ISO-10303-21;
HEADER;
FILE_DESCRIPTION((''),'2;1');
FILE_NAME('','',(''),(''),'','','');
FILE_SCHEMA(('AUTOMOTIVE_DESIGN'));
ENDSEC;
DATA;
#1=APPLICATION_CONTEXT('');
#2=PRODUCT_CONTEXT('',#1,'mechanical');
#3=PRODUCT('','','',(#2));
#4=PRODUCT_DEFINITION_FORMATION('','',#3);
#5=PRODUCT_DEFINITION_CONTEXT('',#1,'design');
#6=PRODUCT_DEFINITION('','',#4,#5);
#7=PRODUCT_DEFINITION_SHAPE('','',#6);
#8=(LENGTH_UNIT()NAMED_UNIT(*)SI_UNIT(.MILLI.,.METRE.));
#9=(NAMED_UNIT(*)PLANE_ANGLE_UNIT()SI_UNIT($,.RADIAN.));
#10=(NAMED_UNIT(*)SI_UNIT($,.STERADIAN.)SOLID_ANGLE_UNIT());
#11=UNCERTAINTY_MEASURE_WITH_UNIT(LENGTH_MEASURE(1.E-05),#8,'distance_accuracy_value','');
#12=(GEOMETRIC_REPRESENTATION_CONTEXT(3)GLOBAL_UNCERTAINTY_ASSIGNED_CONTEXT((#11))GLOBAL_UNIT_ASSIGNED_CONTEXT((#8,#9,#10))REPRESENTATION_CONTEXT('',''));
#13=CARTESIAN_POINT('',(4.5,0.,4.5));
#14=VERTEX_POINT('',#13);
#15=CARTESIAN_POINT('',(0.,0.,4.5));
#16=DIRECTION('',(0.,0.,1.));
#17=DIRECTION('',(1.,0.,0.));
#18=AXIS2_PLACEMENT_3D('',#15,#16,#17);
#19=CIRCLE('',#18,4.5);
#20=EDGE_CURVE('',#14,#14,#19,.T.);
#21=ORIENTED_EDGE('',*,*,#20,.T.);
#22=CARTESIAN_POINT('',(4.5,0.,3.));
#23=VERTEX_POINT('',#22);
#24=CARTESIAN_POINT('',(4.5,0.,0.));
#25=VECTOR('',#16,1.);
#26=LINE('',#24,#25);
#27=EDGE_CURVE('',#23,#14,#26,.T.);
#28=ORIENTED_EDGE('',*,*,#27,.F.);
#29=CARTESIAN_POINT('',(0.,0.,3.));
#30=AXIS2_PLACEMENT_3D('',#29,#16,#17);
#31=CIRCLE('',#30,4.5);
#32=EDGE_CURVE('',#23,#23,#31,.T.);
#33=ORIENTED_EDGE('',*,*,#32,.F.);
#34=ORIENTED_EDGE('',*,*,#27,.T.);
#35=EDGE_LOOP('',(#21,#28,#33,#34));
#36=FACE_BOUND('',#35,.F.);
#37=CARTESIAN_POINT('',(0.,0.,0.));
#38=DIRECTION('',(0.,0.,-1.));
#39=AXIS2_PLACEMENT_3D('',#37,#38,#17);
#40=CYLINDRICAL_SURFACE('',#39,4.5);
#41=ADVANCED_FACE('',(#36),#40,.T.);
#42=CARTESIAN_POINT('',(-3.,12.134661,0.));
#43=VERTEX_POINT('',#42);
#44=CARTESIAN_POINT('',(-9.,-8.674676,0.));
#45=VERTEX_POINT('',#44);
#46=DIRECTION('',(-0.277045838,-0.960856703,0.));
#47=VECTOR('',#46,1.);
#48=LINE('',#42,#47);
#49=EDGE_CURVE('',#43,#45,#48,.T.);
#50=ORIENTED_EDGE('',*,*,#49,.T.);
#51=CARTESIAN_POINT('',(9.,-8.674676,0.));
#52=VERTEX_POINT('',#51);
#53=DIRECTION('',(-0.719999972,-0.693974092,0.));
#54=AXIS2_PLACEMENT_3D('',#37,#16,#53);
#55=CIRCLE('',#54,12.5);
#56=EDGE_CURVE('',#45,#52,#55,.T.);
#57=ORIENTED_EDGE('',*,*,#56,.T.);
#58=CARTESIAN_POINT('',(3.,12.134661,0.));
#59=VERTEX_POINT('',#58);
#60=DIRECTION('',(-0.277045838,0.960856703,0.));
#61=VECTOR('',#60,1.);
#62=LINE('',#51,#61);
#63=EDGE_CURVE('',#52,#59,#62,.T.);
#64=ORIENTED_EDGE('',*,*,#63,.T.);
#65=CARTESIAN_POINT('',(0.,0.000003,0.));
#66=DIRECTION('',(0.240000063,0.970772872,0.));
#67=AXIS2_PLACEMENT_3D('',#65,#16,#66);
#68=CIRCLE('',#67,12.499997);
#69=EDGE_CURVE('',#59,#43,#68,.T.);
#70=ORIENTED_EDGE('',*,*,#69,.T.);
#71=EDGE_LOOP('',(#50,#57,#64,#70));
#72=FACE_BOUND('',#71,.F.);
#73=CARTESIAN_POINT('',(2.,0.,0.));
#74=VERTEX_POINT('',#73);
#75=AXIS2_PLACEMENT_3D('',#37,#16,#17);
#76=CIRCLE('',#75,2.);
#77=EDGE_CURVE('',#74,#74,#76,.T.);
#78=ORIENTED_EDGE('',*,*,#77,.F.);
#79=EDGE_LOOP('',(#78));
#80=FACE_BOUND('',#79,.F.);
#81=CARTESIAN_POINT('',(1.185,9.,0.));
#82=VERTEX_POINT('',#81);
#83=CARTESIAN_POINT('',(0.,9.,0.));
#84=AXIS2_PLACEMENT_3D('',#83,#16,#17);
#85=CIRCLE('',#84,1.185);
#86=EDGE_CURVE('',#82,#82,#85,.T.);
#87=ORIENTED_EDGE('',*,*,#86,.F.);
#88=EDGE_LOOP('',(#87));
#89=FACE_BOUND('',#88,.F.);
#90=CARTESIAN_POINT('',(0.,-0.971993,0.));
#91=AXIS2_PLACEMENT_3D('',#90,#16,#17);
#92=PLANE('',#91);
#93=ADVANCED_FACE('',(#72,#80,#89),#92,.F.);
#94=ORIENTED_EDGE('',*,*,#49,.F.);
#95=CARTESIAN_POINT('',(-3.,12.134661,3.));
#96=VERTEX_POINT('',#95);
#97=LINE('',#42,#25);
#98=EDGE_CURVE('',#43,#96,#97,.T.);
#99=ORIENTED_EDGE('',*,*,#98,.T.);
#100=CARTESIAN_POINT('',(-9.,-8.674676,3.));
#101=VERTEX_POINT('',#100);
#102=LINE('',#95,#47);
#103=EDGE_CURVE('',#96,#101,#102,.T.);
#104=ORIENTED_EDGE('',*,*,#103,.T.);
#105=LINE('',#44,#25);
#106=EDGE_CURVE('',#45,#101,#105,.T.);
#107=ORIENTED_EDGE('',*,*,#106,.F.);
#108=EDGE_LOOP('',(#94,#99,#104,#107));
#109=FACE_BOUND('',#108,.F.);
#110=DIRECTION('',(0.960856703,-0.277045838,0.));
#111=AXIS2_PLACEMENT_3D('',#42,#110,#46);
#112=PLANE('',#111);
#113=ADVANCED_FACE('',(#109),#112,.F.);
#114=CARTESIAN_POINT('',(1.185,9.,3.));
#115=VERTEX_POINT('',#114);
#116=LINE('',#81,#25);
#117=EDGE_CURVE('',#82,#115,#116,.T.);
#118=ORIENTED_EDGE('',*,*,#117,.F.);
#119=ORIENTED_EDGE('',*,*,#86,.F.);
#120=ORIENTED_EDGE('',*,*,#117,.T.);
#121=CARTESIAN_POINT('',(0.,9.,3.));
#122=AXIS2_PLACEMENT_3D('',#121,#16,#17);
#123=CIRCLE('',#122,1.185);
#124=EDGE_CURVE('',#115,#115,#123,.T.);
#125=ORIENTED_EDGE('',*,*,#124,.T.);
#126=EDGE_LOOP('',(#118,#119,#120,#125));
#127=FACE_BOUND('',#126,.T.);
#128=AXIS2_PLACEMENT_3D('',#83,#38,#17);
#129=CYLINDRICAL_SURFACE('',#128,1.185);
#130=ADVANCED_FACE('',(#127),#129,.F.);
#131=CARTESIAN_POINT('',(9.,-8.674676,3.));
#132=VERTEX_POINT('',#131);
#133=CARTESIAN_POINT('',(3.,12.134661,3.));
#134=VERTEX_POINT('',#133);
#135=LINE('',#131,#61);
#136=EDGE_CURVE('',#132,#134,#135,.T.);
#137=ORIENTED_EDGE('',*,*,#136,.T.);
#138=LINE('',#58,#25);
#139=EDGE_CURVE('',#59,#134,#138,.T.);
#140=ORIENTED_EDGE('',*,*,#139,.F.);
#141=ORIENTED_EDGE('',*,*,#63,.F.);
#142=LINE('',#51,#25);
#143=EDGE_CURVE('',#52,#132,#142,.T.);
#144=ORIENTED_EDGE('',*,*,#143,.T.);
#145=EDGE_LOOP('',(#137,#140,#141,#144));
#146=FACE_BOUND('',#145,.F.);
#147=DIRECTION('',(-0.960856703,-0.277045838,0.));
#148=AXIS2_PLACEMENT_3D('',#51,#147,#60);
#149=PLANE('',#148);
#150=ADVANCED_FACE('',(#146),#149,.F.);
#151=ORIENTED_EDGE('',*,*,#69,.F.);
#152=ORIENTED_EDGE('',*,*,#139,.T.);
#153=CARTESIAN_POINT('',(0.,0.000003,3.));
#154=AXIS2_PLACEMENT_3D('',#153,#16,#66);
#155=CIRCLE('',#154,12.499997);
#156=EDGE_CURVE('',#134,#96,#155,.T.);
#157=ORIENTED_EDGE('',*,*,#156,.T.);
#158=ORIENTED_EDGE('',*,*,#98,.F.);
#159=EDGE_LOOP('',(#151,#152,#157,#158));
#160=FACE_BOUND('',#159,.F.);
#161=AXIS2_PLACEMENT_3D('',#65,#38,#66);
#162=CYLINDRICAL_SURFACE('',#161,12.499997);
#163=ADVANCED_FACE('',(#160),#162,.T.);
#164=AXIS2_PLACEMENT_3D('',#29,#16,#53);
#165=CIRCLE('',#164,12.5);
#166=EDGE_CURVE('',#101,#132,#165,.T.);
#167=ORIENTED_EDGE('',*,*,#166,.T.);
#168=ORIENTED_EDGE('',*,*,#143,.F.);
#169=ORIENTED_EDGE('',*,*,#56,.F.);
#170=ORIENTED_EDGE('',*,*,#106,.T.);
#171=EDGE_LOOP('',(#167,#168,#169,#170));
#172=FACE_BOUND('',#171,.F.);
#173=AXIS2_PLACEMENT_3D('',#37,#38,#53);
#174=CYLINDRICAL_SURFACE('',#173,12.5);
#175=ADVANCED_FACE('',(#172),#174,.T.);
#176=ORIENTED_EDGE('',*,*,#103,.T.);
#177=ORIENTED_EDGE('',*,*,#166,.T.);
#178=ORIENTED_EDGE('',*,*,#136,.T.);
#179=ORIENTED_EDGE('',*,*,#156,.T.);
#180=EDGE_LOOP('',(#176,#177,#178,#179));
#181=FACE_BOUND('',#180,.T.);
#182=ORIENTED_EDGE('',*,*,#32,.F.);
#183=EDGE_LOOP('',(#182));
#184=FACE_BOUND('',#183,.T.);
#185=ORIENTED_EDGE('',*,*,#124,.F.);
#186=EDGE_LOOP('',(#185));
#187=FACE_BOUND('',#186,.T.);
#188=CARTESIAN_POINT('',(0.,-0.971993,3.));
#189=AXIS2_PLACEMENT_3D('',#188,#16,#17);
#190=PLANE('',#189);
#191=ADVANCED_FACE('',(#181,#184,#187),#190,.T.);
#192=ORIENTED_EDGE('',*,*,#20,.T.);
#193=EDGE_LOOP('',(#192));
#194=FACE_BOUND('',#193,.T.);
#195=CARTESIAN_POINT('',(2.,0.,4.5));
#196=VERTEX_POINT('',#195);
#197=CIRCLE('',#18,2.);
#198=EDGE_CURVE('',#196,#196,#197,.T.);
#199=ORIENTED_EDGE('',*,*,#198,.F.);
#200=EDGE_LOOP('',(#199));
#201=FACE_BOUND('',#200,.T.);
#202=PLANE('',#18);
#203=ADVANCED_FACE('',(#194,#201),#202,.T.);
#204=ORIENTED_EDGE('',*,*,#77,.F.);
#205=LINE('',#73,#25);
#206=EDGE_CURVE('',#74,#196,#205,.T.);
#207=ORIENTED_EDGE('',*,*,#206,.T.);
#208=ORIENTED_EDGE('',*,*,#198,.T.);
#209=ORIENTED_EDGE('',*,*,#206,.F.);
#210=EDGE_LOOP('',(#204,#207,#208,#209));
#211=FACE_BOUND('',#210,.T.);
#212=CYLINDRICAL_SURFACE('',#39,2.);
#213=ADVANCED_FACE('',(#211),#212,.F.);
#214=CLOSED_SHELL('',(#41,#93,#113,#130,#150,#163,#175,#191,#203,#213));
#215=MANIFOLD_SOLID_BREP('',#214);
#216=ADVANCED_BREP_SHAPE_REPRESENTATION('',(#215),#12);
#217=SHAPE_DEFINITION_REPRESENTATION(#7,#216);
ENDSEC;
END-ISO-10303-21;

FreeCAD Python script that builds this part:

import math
import FreeCAD as App
import Part
import Sketcher
from FreeCAD import Vector

doc = App.newDocument("Part")
body = doc.addObject("PartDesign::Body", "Body")

sketch1 = doc.addObject("Sketcher::SketchObject", "Sketch")
body.addObject(sketch1)
sketch1.AttachmentSupport = (doc.XY_Plane, [""])
sketch1.MapMode = "FlatFace"
sketch1.addGeometry([
    Part.LineSegment(Vector(-3, 12.1, 0), Vector(-9, -8.7, 0)),
    Part.ArcOfCircle(Part.Circle(Vector(0, 0, 0), Vector(0, 0, 1), 12.5), math.radians(-136), math.radians(-44)),
    Part.LineSegment(Vector(9, -8.7, 0), Vector(3, 12.1, 0)),
    Part.ArcOfCircle(Part.Circle(Vector(0, 0, 0), Vector(0, 0, 1), 12.5), math.radians(76), math.radians(104)),
    Part.Circle(Vector(0, 0, 0), Vector(0, 0, 1), 4.5),
    Part.Circle(Vector(0, 9, 0), Vector(0, 0, 1), 1.2),
], False)
sketch1.addConstraint([
    Sketcher.Constraint("Coincident", 0, 2, 1, 1),
    Sketcher.Constraint("Coincident", 1, 2, 2, 1),
    Sketcher.Constraint("Coincident", 2, 2, 3, 1),
    Sketcher.Constraint("Coincident", 3, 2, 0, 1),
    Sketcher.Constraint("Coincident", 1, 3, -1, 1),
    Sketcher.Constraint("Coincident", 3, 3, -1, 1),
    Sketcher.Constraint("Coincident", 4, 3, -1, 1),
    Sketcher.Constraint("PointOnObject", 5, 3, -2),
    Sketcher.Constraint("Horizontal", 0, 2, 1, 2),
    Sketcher.Constraint("Horizontal", 2, 2, 3, 2),
    Sketcher.Constraint("Diameter", 4, 9.0),
    Sketcher.Constraint("Radius", 1, 12.5),
    Sketcher.Constraint("Diameter", 5, 2.37),
    Sketcher.Constraint("DistanceY", -1, 1, 5, 3, 9.0),
    Sketcher.Constraint("DistanceX", 0, 2, -1, 1, 9.0),
    Sketcher.Constraint("DistanceX", -1, 1, 2, 2, 3.0),
    Sketcher.Constraint("Radius", 3, 12.499997),
])
pad1 = doc.addObject("PartDesign::Pad", "Pad")
body.addObject(pad1)
pad1.Profile = sketch1
pad1.Length = 3

sketch2 = doc.addObject("Sketcher::SketchObject", "Sketch001")
body.addObject(sketch2)
sketch2.AttachmentSupport = (doc.XY_Plane, [""])
sketch2.MapMode = "FlatFace"
sketch2.addGeometry([
    Part.Circle(Vector(0, 0, 0), Vector(0, 0, 1), 4.5),
    Part.Circle(Vector(0, 0, 0), Vector(0, 0, 1), 2),
], False)
sketch2.addConstraint([
    Sketcher.Constraint("Coincident", 0, 3, -1, 1),
    Sketcher.Constraint("Coincident", 1, 3, -1, 1),
    Sketcher.Constraint("Diameter", 0, 9.0),
    Sketcher.Constraint("Diameter", 1, 4.0),
])
pad2 = doc.addObject("PartDesign::Pad", "Pad001")
body.addObject(pad2)
pad2.Profile = sketch2
pad2.Length = 4.5

doc.recompute()
